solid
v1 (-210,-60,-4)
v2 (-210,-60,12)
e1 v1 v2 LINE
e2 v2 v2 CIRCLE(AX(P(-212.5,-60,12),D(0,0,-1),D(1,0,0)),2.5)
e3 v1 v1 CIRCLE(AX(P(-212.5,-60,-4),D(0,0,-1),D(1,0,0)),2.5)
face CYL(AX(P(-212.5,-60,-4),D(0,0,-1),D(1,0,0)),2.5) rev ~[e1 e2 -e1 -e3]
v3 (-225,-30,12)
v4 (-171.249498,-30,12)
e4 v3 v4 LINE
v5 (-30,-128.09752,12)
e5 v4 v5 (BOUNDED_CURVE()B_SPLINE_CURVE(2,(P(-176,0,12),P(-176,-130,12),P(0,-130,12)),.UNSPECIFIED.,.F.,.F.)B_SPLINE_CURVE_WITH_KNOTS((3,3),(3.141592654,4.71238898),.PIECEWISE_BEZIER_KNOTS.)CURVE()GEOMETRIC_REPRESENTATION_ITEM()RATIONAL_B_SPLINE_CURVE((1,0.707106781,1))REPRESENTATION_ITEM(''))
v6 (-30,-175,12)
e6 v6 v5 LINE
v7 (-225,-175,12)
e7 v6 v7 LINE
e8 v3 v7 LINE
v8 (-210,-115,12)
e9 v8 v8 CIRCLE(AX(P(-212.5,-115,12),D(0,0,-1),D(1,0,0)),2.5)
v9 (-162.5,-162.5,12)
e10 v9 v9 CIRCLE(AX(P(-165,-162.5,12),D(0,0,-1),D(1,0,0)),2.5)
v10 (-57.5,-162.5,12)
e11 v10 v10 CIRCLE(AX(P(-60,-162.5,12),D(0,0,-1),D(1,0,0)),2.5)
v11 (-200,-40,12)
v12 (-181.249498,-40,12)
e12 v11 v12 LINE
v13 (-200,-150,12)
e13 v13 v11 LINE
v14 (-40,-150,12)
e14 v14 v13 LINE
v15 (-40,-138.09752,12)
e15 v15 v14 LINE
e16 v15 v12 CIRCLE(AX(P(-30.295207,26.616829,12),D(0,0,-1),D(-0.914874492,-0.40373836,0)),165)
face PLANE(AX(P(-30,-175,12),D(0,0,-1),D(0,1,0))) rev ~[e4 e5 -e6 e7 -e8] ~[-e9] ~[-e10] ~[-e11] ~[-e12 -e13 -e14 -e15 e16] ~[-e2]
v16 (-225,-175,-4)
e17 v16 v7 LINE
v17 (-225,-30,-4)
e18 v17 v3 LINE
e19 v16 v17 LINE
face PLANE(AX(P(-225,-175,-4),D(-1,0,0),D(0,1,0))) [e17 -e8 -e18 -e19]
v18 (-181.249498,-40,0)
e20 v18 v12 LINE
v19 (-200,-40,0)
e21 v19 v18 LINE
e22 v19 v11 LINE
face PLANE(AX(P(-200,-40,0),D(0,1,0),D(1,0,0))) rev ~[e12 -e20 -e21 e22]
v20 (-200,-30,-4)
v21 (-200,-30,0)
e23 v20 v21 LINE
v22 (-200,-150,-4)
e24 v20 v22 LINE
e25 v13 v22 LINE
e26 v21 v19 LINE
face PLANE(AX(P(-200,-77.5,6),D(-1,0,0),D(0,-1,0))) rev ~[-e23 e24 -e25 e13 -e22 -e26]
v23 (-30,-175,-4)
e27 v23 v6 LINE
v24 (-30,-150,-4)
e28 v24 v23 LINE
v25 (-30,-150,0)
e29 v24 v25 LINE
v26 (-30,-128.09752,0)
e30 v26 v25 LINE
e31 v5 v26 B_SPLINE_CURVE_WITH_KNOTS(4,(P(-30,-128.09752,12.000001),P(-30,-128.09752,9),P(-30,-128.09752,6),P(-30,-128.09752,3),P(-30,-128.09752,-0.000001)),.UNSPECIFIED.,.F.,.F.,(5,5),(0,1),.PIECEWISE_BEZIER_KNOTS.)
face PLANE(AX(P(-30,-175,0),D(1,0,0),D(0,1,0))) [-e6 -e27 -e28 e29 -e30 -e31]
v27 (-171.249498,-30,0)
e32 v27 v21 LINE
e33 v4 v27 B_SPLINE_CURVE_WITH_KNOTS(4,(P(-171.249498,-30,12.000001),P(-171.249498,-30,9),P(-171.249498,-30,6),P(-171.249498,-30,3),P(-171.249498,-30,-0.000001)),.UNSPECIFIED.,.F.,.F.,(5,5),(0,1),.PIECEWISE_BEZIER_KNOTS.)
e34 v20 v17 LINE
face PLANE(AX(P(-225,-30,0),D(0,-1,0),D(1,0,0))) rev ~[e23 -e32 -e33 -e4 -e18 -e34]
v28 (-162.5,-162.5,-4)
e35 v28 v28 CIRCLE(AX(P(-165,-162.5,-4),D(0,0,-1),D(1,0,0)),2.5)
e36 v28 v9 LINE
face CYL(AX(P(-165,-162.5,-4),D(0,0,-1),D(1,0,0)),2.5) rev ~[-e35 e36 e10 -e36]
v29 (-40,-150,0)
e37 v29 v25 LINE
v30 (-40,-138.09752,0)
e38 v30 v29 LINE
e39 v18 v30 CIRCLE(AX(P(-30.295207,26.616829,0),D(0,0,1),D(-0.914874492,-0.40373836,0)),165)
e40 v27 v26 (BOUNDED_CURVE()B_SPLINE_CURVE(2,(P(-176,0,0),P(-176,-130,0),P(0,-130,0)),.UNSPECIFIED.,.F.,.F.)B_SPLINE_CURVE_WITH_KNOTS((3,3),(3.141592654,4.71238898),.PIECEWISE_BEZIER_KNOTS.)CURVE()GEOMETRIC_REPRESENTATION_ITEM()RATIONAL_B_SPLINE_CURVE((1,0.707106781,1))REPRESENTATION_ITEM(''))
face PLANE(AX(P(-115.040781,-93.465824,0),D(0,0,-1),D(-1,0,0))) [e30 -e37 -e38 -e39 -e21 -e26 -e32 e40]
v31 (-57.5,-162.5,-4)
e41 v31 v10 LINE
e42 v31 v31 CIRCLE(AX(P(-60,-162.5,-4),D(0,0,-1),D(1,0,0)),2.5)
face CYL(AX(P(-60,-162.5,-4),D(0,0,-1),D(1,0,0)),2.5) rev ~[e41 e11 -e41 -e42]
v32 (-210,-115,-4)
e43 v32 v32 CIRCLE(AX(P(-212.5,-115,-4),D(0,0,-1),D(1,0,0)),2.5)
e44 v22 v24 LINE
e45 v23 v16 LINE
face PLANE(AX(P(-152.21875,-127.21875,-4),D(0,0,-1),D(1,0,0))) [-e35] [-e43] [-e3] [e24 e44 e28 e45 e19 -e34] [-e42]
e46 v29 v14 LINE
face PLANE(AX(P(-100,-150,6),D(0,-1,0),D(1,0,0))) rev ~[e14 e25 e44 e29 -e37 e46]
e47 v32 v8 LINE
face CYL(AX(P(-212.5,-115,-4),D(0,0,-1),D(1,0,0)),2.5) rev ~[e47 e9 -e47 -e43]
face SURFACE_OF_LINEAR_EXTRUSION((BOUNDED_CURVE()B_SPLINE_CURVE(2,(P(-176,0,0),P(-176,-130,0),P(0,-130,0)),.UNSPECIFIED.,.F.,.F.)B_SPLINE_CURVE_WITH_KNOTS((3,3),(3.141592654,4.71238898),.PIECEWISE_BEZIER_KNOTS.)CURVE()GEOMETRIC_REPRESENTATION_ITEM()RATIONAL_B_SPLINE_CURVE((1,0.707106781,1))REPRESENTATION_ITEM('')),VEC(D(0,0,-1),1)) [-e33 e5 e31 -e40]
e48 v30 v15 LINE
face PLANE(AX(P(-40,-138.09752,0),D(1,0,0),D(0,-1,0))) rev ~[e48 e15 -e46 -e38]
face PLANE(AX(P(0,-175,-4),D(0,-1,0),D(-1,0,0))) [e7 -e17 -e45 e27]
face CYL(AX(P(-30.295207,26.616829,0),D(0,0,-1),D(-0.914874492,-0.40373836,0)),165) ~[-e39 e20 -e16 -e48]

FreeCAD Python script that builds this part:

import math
import FreeCAD as App
import Part
import Sketcher

V = App.Vector

doc = App.newDocument("Part")
params = doc.addObject("Spreadsheet::Sheet", "Params")
for row, (alias, value) in enumerate([
    ("sketch1_width", "24 mm"),
    ("sketch1_height", "150 mm"),
    ("pad1_length", "12 mm"),
    ("sketch2_width", "200 mm"),
    ("sketch2_height", "20 mm"),
    ("pad2_length", "5 mm"),
    ("sketch3_width", "155 mm"),
    ("sketch3_height", "20 mm"),
    ("pad3_length", "5 mm"),
    ("sketch4_diameter", "5 mm"),
    ("sketch4_width", "225 mm"),
    ("sketch4_width2", "20 mm"),
    ("sketch4_height", "175 mm"),
    ("pad4_length", "25 mm"),
    ("sketch5_width", "15 mm"),
    ("sketch5_width2", "205 mm"),
    ("sketch5_height", "155 mm"),
    ("pad5_length", "5 mm"),
    ("sketch6_width", "195 mm"),
    ("sketch6_width2", "30 mm"),
    ("sketch6_height", "145 mm"),
    ("pocket1_length", "50 mm"),
    ("sketch7_width", "145 mm"),
    ("sketch7_height", "9 mm"),
    ("sketch8_radius", "165 mm"),
    ("sketch8_width", "160 mm"),
    ("sketch8_height", "110 mm"),
    ("pocket3_length", "25 mm"),
], start=1):
    params.set(f"A{row}", alias)
    params.set(f"B{row}", "=" + value)
    params.setAlias(f"B{row}", alias)

body = doc.addObject("PartDesign::Body", "Body")

sketch1 = body.newObject("Sketcher::SketchObject", "Sketch")
sketch1.AttachmentSupport = (doc.getObject("XY_Plane"), [""])
sketch1.MapMode = "FlatFace"
sketch1.addGeometry([
    Part.BSplineCurve([V(-176, 0, 0), V(-176, -130, 0), V(0, -130, 0)], [3, 3], [3.141592654, 4.71238898], False, 2, [1, 0.707106781, 1], False),
    Part.LineSegment(V(-176, 0, 0), V(-200, 0, 0)),
    Part.LineSegment(V(-200, 0, 0), V(-200, -150, 0)),
    Part.LineSegment(V(-200, -150, 0), V(0, -150, 0)),
    Part.LineSegment(V(0, -150, 0), V(0, -130, 0)),
], False)
sketch1.addConstraint([
    Sketcher.Constraint("Block", 0),
    Sketcher.Constraint("Coincident", 0, 1, 1, 1),
    Sketcher.Constraint("Coincident", 1, 2, 2, 1),
    Sketcher.Constraint("Coincident", 2, 2, 3, 1),
    Sketcher.Constraint("Coincident", 3, 2, 4, 1),
    Sketcher.Constraint("Coincident", 4, 2, 0, 2),
    Sketcher.Constraint("Horizontal", 1),
    Sketcher.Constraint("Vertical", 2),
    Sketcher.Constraint("Horizontal", 3),
    Sketcher.Constraint("Vertical", 4),
    Sketcher.Constraint("DistanceX", 1, 2, 1, 1, 24.0),
    Sketcher.Constraint("DistanceY", 2, 2, 2, 1, 150.0),
])
sketch1.setExpression("Constraints[10]", "Params.sketch1_width")
sketch1.setExpression("Constraints[11]", "Params.sketch1_height")
pad1 = body.newObject("PartDesign::Pad", "Pad")
pad1.Profile = sketch1
pad1.setExpression("Length", "Params.pad1_length")

sketch2 = body.newObject("Sketcher::SketchObject", "Sketch001")
sketch2.AttachmentSupport = (doc.getObject("XZ_Plane"), [""])
sketch2.MapMode = "FlatFace"
sketch2.AttachmentOffset = App.Placement(V(0, 0, 150), App.Rotation())
sketch2.addGeometry([
    Part.LineSegment(V(-200, 16, 0), V(-200, -4, 0)),
    Part.LineSegment(V(-200, -4, 0), V(0, -4, 0)),
    Part.LineSegment(V(0, -4, 0), V(0, 16, 0)),
    Part.LineSegment(V(0, 16, 0), V(-200, 16, 0)),
], False)
sketch2.addConstraint([
    Sketcher.Constraint("Coincident", 0, 2, 1, 1),
    Sketcher.Constraint("Coincident", 1, 2, 2, 1),
    Sketcher.Constraint("Coincident", 2, 2, 3, 1),
    Sketcher.Constraint("Coincident", 3, 2, 0, 1),
    Sketcher.Constraint("Vertical", 0),
    Sketcher.Constraint("Horizontal", 1),
    Sketcher.Constraint("Vertical", 2),
    Sketcher.Constraint("Horizontal", 3),
    Sketcher.Constraint("PointOnObject", 1, 2, -2),
    Sketcher.Constraint("DistanceX", 1, 1, 1, 2, 200.0),
    Sketcher.Constraint("DistanceY", 0, 2, 0, 1, 20.0),
    Sketcher.Constraint("DistanceY", 0, 2, -1, 1, 4.0),
])
sketch2.setExpression("Constraints[9]", "Params.sketch2_width")
sketch2.setExpression("Constraints[10]", "Params.sketch2_height")
pad2 = body.newObject("PartDesign::Pad", "Pad001")
pad2.Profile = sketch2
pad2.setExpression("Length", "Params.pad2_length")

sketch3 = body.newObject("Sketcher::SketchObject", "Sketch002")
sketch3.AttachmentSupport = (doc.getObject("YZ_Plane"), [""])
sketch3.MapMode = "FlatFace"
sketch3.AttachmentOffset = App.Placement(V(0, 0, -200), App.Rotation())
sketch3.addGeometry([
    Part.LineSegment(V(0, 16, 0), V(0, -4, 0)),
    Part.LineSegment(V(0, -4, 0), V(-155, -4, 0)),
    Part.LineSegment(V(-155, -4, 0), V(-155, 16, 0)),
    Part.LineSegment(V(-155, 16, 0), V(0, 16, 0)),
], False)
sketch3.addConstraint([
    Sketcher.Constraint("Coincident", 0, 2, 1, 1),
    Sketcher.Constraint("Coincident", 1, 2, 2, 1),
    Sketcher.Constraint("Coincident", 2, 2, 3, 1),
    Sketcher.Constraint("Coincident", 3, 2, 0, 1),
    Sketcher.Constraint("Vertical", 0),
    Sketcher.Constraint("Horizontal", 1),
    Sketcher.Constraint("Vertical", 2),
    Sketcher.Constraint("Horizontal", 3),
    Sketcher.Constraint("PointOnObject", 0, 2, -2),
    Sketcher.Constraint("DistanceX", 1, 2, 1, 1, 155.0),
    Sketcher.Constraint("DistanceY", 0, 2, 0, 1, 20.0),
    Sketcher.Constraint("DistanceY", 0, 2, -1, 1, 4.0),
])
sketch3.setExpression("Constraints[9]", "Params.sketch3_width")
sketch3.setExpression("Constraints[10]", "Params.sketch3_height")
pad3 = body.newObject("PartDesign::Pad", "Pad002")
pad3.Profile = sketch3
pad3.setExpression("Length", "Params.pad3_length")
pad3.Reversed = True

sketch4 = body.newObject("Sketcher::SketchObject", "Sketch003")
sketch4.AttachmentSupport = (doc.getObject("XY_Plane"), [""])
sketch4.MapMode = "FlatFace"
sketch4.AttachmentOffset = App.Placement(V(0, 0, -4), App.Rotation())
sketch4.addGeometry([
    Part.LineSegment(V(0, -155, 0), V(0, -175, 0)),
    Part.LineSegment(V(0, -175, 0), V(-225, -175, 0)),
    Part.LineSegment(V(-225, -175, 0), V(-225, 0, 0)),
    Part.LineSegment(V(-225, 0, 0), V(-205, 0, 0)),
    Part.LineSegment(V(-205, 0, 0), V(-205, -155, 0)),
    Part.LineSegment(V(-205, -155, 0), V(0, -155, 0)),
    Part.Circle(V(-212.5, -60, 0), V(0, 0, 1), 2.5),
    Part.Circle(V(-212.5, -115, 0), V(0, 0, 1), 2.5),
    Part.Circle(V(-165, -162.5, 0), V(0, 0, 1), 2.5),
    Part.Circle(V(-60, -162.5, 0), V(0, 0, 1), 2.5),
], False)
sketch4.addConstraint([
    Sketcher.Constraint("Coincident", 0, 2, 1, 1),
    Sketcher.Constraint("Coincident", 1, 2, 2, 1),
    Sketcher.Constraint("Coincident", 2, 2, 3, 1),
    Sketcher.Constraint("Coincident", 3, 2, 4, 1),
    Sketcher.Constraint("Coincident", 4, 2, 5, 1),
    Sketcher.Constraint("Coincident", 5, 2, 0, 1),
    Sketcher.Constraint("Vertical", 0),
    Sketcher.Constraint("Horizontal", 1),
    Sketcher.Constraint("Vertical", 2),
    Sketcher.Constraint("Horizontal", 3),
    Sketcher.Constraint("Vertical", 4),
    Sketcher.Constraint("Horizontal", 5),
    Sketcher.Constraint("Equal", 6, 7),
    Sketcher.Constraint("Equal", 7, 8),
    Sketcher.Constraint("Equal", 8, 9),
    Sketcher.Constraint("PointOnObject", 0, 2, -2),
    Sketcher.Constraint("PointOnObject", 2, 2, -1),
    Sketcher.Constraint("Horizontal", 8, 3, 9, 3),
    Sketcher.Constraint("Vertical", 6, 3, 7, 3),
    Sketcher.Constraint("Equal", 3, 0),
    Sketcher.Constraint("Diameter", 6, 5.0),
    Sketcher.Constraint("DistanceX", 1, 2, 1, 1, 225.0),
    Sketcher.Constraint("DistanceX", 3, 1, 3, 2, 20.0),
    Sketcher.Constraint("DistanceY", 2, 1, 2, 2, 175.0),
    Sketcher.Constraint("DistanceY", 6, 3, -1, 1, 60.0),
    Sketcher.Constraint("DistanceY", 7, 3, -1, 1, 115.0),
    Sketcher.Constraint("DistanceX", 8, 3, -1, 1, 165.0),
    Sketcher.Constraint("DistanceX", 9, 3, -1, 1, 60.0),
    Sketcher.Constraint("DistanceX", 6, 3, -1, 1, 212.5),
    Sketcher.Constraint("DistanceY", 8, 3, -1, 1, 162.5),
])
sketch4.setExpression("Constraints[20]", "Params.sketch4_diameter")
sketch4.setExpression("Constraints[21]", "Params.sketch4_width")
sketch4.setExpression("Constraints[22]", "Params.sketch4_width2")
sketch4.setExpression("Constraints[23]", "Params.sketch4_height")
pad4 = body.newObject("PartDesign::Pad", "Pad003")
pad4.Profile = sketch4
pad4.setExpression("Length", "Params.pad4_length")

sketch5 = body.newObject("Sketcher::SketchObject", "Sketch004")
sketch5.AttachmentSupport = (doc.getObject("XY_Plane"), [""])
sketch5.MapMode = "FlatFace"
sketch5.AttachmentOffset = App.Placement(V(0, 0, 16), App.Rotation())
sketch5.addGeometry([
    Part.LineSegment(V(-190, 0, 0), V(-205, 0, 0)),
    Part.LineSegment(V(-205, 0, 0), V(-205, -155, 0)),
    Part.LineSegment(V(-205, -155, 0), V(0, -155, 0)),
    Part.LineSegment(V(0, -155, 0), V(0, -140, 0)),
    Part.LineSegment(V(0, -140, 0), V(-190, -140, 0)),
    Part.LineSegment(V(-190, -140, 0), V(-190, 0, 0)),
], False)
sketch5.addConstraint([
    Sketcher.Constraint("Coincident", 0, 2, 1, 1),
    Sketcher.Constraint("Coincident", 1, 2, 2, 1),
    Sketcher.Constraint("Coincident", 2, 2, 3, 1),
    Sketcher.Constraint("Coincident", 3, 2, 4, 1),
    Sketcher.Constraint("Coincident", 4, 2, 5, 1),
    Sketcher.Constraint("Coincident", 5, 2, 0, 1),
    Sketcher.Constraint("Horizontal", 0),
    Sketcher.Constraint("Vertical", 1),
    Sketcher.Constraint("Horizontal", 2),
    Sketcher.Constraint("Vertical", 3),
    Sketcher.Constraint("Horizontal", 4),
    Sketcher.Constraint("Vertical", 5),
    Sketcher.Constraint("PointOnObject", 0, 2, -1),
    Sketcher.Constraint("PointOnObject", 2, 2, -2),
    Sketcher.Constraint("Equal", 0, 3),
    Sketcher.Constraint("DistanceX", 0, 2, 0, 1, 15.0),
    Sketcher.Constraint("DistanceX", 2, 1, 2, 2, 205.0),
    Sketcher.Constraint("DistanceY", 1, 2, 1, 1, 155.0),
])
sketch5.setExpression("Constraints[15]", "Params.sketch5_width")
sketch5.setExpression("Constraints[16]", "Params.sketch5_width2")
sketch5.setExpression("Constraints[17]", "Params.sketch5_height")
pad5 = body.newObject("PartDesign::Pad", "Pad004")
pad5.Profile = sketch5
pad5.setExpression("Length", "Params.pad5_length")

sketch6 = body.newObject("Sketcher::SketchObject", "Sketch005")
sketch6.AttachmentSupport = (doc.getObject("XY_Plane"), [""])
sketch6.MapMode = "FlatFace"
sketch6.addGeometry([
    Part.LineSegment(V(-225, 0, 0), V(-225, -30, 0)),
    Part.LineSegment(V(-225, -30, 0), V(-30, -30, 0)),
    Part.LineSegment(V(-30, -30, 0), V(-30, -175, 0)),
    Part.LineSegment(V(-30, -175, 0), V(0, -175, 0)),
    Part.LineSegment(V(0, -175, 0), V(0, 0, 0)),
    Part.LineSegment(V(0, 0, 0), V(-225, 0, 0)),
], False)
sketch6.addConstraint([
    Sketcher.Constraint("Coincident", 0, 2, 1, 1),
    Sketcher.Constraint("Coincident", 1, 2, 2, 1),
    Sketcher.Constraint("Coincident", 2, 2, 3, 1),
    Sketcher.Constraint("Coincident", 3, 2, 4, 1),
    Sketcher.Constraint("Coincident", 4, 2, 5, 1),
    Sketcher.Constraint("Coincident", 5, 2, 0, 1),
    Sketcher.Constraint("Vertical", 0),
    Sketcher.Constraint("Horizontal", 1),
    Sketcher.Constraint("Vertical", 2),
    Sketcher.Constraint("Horizontal", 3),
    Sketcher.Constraint("Vertical", 4),
    Sketcher.Constraint("Horizontal", 5),
    Sketcher.Constraint("Coincident", 4, 2, -1, 1),
    Sketcher.Constraint("Equal", 3, 0),
    Sketcher.Constraint("DistanceX", 1, 1, 1, 2, 195.0),
    Sketcher.Constraint("DistanceX", 3, 1, 3, 2, 30.0),
    Sketcher.Constraint("DistanceY", 2, 2, 2, 1, 145.0),
])
sketch6.setExpression("Constraints[14]", "Params.sketch6_width")
sketch6.setExpression("Constraints[15]", "Params.sketch6_width2")
sketch6.setExpression("Constraints[16]", "Params.sketch6_height")
pocket1 = body.newObject("PartDesign::Pocket", "Pocket")
pocket1.Profile = sketch6
pocket1.setExpression("Length", "Params.pocket1_length")
pocket1.Midplane = True

sketch7 = body.newObject("Sketcher::SketchObject", "Sketch006")
sketch7.AttachmentSupport = (doc.getObject("YZ_Plane"), [""])
sketch7.MapMode = "FlatFace"
sketch7.AttachmentOffset = App.Placement(V(0, 0, -30), App.Rotation())
sketch7.addGeometry([
    Part.LineSegment(V(-175, 21, 0), V(-175, 12, 0)),
    Part.LineSegment(V(-175, 12, 0), V(-30, 12, 0)),
    Part.LineSegment(V(-30, 12, 0), V(-30, 21, 0)),
    Part.LineSegment(V(-30, 21, 0), V(-175, 21, 0)),
], False)
sketch7.addConstraint([
    Sketcher.Constraint("Coincident", 0, 2, 1, 1),
    Sketcher.Constraint("Coincident", 1, 2, 2, 1),
    Sketcher.Constraint("Coincident", 2, 2, 3, 1),
    Sketcher.Constraint("Coincident", 3, 2, 0, 1),
    Sketcher.Constraint("Vertical", 0),
    Sketcher.Constraint("Horizontal", 1),
    Sketcher.Constraint("Vertical", 2),
    Sketcher.Constraint("Horizontal", 3),
    Sketcher.Constraint("DistanceX", 1, 1, 1, 2, 145.0),
    Sketcher.Constraint("DistanceY", 0, 2, 0, 1, 9.0),
    Sketcher.Constraint("DistanceX", 0, 2, -1, 1, 175.0),
    Sketcher.Constraint("DistanceY", -1, 1, 0, 2, 12.0),
])
sketch7.setExpression("Constraints[8]", "Params.sketch7_width")
sketch7.setExpression("Constraints[9]", "Params.sketch7_height")
pocket2 = body.newObject("PartDesign::Pocket", "Pocket001")
pocket2.Profile = sketch7
pocket2.Type = "ThroughAll"

sketch8 = body.newObject("Sketcher::SketchObject", "Sketch007")
sketch8.AttachmentSupport = (doc.getObject("XY_Plane"), [""])
sketch8.MapMode = "FlatFace"
sketch8.addGeometry([
    Part.ArcOfCircle(Part.Circle(V(-30, 27, 0), V(0, 0, 1), 165), math.radians(-156), math.radians(-93)),
    Part.LineSegment(V(-40, -138, 0), V(-40, -150, 0)),
    Part.LineSegment(V(-40, -150, 0), V(-200, -150, 0)),
    Part.LineSegment(V(-200, -150, 0), V(-200, -40, 0)),
    Part.LineSegment(V(-200, -40, 0), V(-181, -40, 0)),
], False)
sketch8.addConstraint([
    Sketcher.Constraint("Coincident", 0, 2, 1, 1),
    Sketcher.Constraint("Coincident", 1, 2, 2, 1),
    Sketcher.Constraint("Coincident", 2, 2, 3, 1),
    Sketcher.Constraint("Coincident", 3, 2, 4, 1),
    Sketcher.Constraint("Coincident", 4, 2, 0, 1),
    Sketcher.Constraint("Vertical", 1),
    Sketcher.Constraint("Horizontal", 2),
    Sketcher.Constraint("Vertical", 3),
    Sketcher.Constraint("Horizontal", 4),
    Sketcher.Constraint("Radius", 0, 165.0),
    Sketcher.Constraint("DistanceX", 2, 2, 2, 1, 160.0),
    Sketcher.Constraint("DistanceY", 3, 1, 3, 2, 110.0),
    Sketcher.Constraint("DistanceX", 0, 2, -1, 1, 40.0),
    Sketcher.Constraint("DistanceY", 1, 2, -1, 1, 150.0),
    Sketcher.Constraint("DistanceY", 1, 2, 1, 1, 11.90248),
    Sketcher.Constraint("DistanceX", 4, 1, 4, 2, 18.750502),
])
sketch8.setExpression("Constraints[9]", "Params.sketch8_radius")
sketch8.setExpression("Constraints[10]", "Params.sketch8_width")
sketch8.setExpression("Constraints[11]", "Params.sketch8_height")
pocket3 = body.newObject("PartDesign::Pocket", "Pocket002")
pocket3.Profile = sketch8
pocket3.setExpression("Length", "Params.pocket3_length")
pocket3.Reversed = True

doc.recompute()
